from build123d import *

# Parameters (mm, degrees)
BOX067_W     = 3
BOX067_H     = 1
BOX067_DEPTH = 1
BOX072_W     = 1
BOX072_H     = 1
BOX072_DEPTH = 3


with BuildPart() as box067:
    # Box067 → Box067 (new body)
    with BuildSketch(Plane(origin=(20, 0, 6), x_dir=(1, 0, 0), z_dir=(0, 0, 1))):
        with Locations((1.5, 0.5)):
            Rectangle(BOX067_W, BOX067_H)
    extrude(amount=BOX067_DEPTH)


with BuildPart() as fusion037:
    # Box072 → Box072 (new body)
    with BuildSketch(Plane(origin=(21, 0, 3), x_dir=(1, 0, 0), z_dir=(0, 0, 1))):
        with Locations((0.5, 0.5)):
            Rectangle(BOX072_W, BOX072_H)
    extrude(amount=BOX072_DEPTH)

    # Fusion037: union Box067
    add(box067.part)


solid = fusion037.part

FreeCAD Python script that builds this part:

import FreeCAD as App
import Part
import Sketcher
from FreeCAD import Vector


def add_polygon(sketch, points):
    """Adds a closed chain of lines whose ends are joined by coincident constraints."""
    first, n = sketch.GeometryCount, len(points)
    for a, b in zip(points, points[1:] + points[:1]):
        sketch.addGeometry(Part.LineSegment(App.Vector(*a, 0), App.Vector(*b, 0)), False)
    for i in range(n):
        sketch.addConstraint(Sketcher.Constraint("Coincident", first + i, 2, first + (i + 1) % n, 1))

doc = App.newDocument("Part")
params = doc.addObject("Spreadsheet::Sheet", "Params")
for row, (alias, value) in enumerate([
    ("sketch1_width", "3 mm"),
    ("sketch1_height", "1 mm"),
    ("pad1_length", "1 mm"),
    ("sketch2_width", "1 mm"),
    ("pad2_length", "3 mm"),
], start=1):
    params.set(f"A{row}", alias)
    params.set(f"B{row}", "=" + value)
    params.setAlias(f"B{row}", alias)

body = doc.addObject("PartDesign::Body", "Body")

# Sketch on XY plane
sketch1 = doc.addObject("Sketcher::SketchObject", "Sketch")
body.addObject(sketch1)
sketch1.AttachmentSupport = (doc.XY_Plane, [""])
sketch1.MapMode = "FlatFace"
sketch1.AttachmentOffset = App.Placement(Vector(0, 0, 6), App.Rotation())
add_polygon(sketch1, [(20, 1), (20, 0), (23, 0), (23, 1)])  # lines 0-3
sketch1.addConstraint(Sketcher.Constraint("Vertical", 0))
sketch1.addConstraint(Sketcher.Constraint("Horizontal", 1))
sketch1.addConstraint(Sketcher.Constraint("Vertical", 2))
sketch1.addConstraint(Sketcher.Constraint("Horizontal", 3))
sketch1.addConstraint(Sketcher.Constraint("PointOnObject", 0, 2, -1))
sketch1.addConstraint(Sketcher.Constraint("DistanceX", 1, 1, 1, 2, 3.0))
sketch1.addConstraint(Sketcher.Constraint("DistanceY", 0, 2, 0, 1, 1.0))
sketch1.addConstraint(Sketcher.Constraint("DistanceX", -1, 1, 0, 2, 20.0))
sketch1.setExpression("Constraints[9]", "Params.sketch1_width")
sketch1.setExpression("Constraints[10]", "Params.sketch1_height")
pad1 = doc.addObject("PartDesign::Pad", "Pad")
body.addObject(pad1)
pad1.Profile = sketch1
pad1.setExpression("Length", "Params.pad1_length")
body2 = doc.addObject("PartDesign::Body", "Body001")

# Sketch on XY plane
sketch2 = doc.addObject("Sketcher::SketchObject", "Sketch001")
body2.addObject(sketch2)
sketch2.AttachmentSupport = (doc.getObject("XY_Plane001"), [""])
sketch2.MapMode = "FlatFace"
sketch2.AttachmentOffset = App.Placement(Vector(0, 0, 3), App.Rotation())
add_polygon(sketch2, [(21, 1), (21, 0), (22, 0), (22, 1)])  # lines 0-3
sketch2.addConstraint(Sketcher.Constraint("Vertical", 0))
sketch2.addConstraint(Sketcher.Constraint("Horizontal", 1))
sketch2.addConstraint(Sketcher.Constraint("Vertical", 2))
sketch2.addConstraint(Sketcher.Constraint("Horizontal", 3))
sketch2.addConstraint(Sketcher.Constraint("PointOnObject", 0, 2, -1))
sketch2.addConstraint(Sketcher.Constraint("Equal", 3, 0))
sketch2.addConstraint(Sketcher.Constraint("DistanceX", 1, 1, 1, 2, 1.0))
sketch2.addConstraint(Sketcher.Constraint("DistanceX", -1, 1, 0, 2, 21.0))
sketch2.setExpression("Constraints[10]", "Params.sketch2_width")
pad2 = doc.addObject("PartDesign::Pad", "Pad001")
body2.addObject(pad2)
pad2.Profile = sketch2
pad2.setExpression("Length", "Params.pad2_length")
doc.recompute()

boolean = doc.addObject("PartDesign::Boolean", "Boolean")
body2.addObject(boolean)
boolean.Type = "Fuse"
boolean.addObjects([body])

doc.recompute()
